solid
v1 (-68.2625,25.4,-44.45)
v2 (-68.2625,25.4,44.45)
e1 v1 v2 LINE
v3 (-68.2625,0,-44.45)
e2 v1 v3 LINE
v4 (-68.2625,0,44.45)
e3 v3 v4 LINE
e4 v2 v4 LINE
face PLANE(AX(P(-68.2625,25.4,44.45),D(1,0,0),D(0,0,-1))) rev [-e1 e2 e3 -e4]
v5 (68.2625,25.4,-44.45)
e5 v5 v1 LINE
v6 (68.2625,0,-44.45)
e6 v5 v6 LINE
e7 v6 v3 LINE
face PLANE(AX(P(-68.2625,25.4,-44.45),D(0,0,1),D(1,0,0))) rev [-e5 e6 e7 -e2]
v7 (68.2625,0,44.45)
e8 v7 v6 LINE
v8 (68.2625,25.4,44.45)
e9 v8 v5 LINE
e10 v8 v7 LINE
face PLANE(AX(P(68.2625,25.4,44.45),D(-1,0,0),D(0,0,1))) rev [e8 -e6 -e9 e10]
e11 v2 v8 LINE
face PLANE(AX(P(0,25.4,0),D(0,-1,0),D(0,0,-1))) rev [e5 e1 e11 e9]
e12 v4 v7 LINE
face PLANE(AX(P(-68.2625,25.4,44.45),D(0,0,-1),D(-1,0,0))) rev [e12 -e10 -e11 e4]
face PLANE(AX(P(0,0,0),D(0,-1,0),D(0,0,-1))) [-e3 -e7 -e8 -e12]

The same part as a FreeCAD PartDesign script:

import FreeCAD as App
import Part
import Sketcher
from FreeCAD import Vector
Q = App.Units.Quantity


def add_polygon(sketch, points):
    """Adds a closed chain of lines whose ends are joined by coincident constraints."""
    first, n = sketch.GeometryCount, len(points)
    for a, b in zip(points, points[1:] + points[:1]):
        sketch.addGeometry(Part.LineSegment(App.Vector(*a, 0), App.Vector(*b, 0)), False)
    for i in range(n):
        sketch.addConstraint(Sketcher.Constraint("Coincident", first + i, 2, first + (i + 1) % n, 1))

doc = App.newDocument("Part")
body = doc.addObject("PartDesign::Body", "Body")

# Sketch on XZ plane
sketch1 = body.newObject("Sketcher::SketchObject", "Sketch")
sketch1.AttachmentSupport = (doc.getObject("XZ_Plane"), [""])
sketch1.MapMode = "FlatFace"
add_polygon(sketch1, [(-68, -44), (-68, 44), (68, 44), (68, -44)])  # lines 0-3
sketch1.addConstraint(Sketcher.Constraint("Vertical", 0))
sketch1.addConstraint(Sketcher.Constraint("Horizontal", 1))
sketch1.addConstraint(Sketcher.Constraint("Vertical", 2))
sketch1.addConstraint(Sketcher.Constraint("Horizontal", 3))
sketch1.addConstraint(Sketcher.Constraint("Symmetric", 0, 2, 2, 2, -1, 1))
sketch1.addConstraint(Sketcher.Constraint("DistanceY", 0, 1, 0, 2, Q("3.5 in")))
sketch1.addConstraint(Sketcher.Constraint("DistanceX", 1, 1, 1, 2, Q("5.375 in")))
pad1 = body.newObject("PartDesign::Pad", "Pad")
pad1.Profile = sketch1
pad1.Length = Q("1 in")
pad1.Reversed = True

doc.recompute()
